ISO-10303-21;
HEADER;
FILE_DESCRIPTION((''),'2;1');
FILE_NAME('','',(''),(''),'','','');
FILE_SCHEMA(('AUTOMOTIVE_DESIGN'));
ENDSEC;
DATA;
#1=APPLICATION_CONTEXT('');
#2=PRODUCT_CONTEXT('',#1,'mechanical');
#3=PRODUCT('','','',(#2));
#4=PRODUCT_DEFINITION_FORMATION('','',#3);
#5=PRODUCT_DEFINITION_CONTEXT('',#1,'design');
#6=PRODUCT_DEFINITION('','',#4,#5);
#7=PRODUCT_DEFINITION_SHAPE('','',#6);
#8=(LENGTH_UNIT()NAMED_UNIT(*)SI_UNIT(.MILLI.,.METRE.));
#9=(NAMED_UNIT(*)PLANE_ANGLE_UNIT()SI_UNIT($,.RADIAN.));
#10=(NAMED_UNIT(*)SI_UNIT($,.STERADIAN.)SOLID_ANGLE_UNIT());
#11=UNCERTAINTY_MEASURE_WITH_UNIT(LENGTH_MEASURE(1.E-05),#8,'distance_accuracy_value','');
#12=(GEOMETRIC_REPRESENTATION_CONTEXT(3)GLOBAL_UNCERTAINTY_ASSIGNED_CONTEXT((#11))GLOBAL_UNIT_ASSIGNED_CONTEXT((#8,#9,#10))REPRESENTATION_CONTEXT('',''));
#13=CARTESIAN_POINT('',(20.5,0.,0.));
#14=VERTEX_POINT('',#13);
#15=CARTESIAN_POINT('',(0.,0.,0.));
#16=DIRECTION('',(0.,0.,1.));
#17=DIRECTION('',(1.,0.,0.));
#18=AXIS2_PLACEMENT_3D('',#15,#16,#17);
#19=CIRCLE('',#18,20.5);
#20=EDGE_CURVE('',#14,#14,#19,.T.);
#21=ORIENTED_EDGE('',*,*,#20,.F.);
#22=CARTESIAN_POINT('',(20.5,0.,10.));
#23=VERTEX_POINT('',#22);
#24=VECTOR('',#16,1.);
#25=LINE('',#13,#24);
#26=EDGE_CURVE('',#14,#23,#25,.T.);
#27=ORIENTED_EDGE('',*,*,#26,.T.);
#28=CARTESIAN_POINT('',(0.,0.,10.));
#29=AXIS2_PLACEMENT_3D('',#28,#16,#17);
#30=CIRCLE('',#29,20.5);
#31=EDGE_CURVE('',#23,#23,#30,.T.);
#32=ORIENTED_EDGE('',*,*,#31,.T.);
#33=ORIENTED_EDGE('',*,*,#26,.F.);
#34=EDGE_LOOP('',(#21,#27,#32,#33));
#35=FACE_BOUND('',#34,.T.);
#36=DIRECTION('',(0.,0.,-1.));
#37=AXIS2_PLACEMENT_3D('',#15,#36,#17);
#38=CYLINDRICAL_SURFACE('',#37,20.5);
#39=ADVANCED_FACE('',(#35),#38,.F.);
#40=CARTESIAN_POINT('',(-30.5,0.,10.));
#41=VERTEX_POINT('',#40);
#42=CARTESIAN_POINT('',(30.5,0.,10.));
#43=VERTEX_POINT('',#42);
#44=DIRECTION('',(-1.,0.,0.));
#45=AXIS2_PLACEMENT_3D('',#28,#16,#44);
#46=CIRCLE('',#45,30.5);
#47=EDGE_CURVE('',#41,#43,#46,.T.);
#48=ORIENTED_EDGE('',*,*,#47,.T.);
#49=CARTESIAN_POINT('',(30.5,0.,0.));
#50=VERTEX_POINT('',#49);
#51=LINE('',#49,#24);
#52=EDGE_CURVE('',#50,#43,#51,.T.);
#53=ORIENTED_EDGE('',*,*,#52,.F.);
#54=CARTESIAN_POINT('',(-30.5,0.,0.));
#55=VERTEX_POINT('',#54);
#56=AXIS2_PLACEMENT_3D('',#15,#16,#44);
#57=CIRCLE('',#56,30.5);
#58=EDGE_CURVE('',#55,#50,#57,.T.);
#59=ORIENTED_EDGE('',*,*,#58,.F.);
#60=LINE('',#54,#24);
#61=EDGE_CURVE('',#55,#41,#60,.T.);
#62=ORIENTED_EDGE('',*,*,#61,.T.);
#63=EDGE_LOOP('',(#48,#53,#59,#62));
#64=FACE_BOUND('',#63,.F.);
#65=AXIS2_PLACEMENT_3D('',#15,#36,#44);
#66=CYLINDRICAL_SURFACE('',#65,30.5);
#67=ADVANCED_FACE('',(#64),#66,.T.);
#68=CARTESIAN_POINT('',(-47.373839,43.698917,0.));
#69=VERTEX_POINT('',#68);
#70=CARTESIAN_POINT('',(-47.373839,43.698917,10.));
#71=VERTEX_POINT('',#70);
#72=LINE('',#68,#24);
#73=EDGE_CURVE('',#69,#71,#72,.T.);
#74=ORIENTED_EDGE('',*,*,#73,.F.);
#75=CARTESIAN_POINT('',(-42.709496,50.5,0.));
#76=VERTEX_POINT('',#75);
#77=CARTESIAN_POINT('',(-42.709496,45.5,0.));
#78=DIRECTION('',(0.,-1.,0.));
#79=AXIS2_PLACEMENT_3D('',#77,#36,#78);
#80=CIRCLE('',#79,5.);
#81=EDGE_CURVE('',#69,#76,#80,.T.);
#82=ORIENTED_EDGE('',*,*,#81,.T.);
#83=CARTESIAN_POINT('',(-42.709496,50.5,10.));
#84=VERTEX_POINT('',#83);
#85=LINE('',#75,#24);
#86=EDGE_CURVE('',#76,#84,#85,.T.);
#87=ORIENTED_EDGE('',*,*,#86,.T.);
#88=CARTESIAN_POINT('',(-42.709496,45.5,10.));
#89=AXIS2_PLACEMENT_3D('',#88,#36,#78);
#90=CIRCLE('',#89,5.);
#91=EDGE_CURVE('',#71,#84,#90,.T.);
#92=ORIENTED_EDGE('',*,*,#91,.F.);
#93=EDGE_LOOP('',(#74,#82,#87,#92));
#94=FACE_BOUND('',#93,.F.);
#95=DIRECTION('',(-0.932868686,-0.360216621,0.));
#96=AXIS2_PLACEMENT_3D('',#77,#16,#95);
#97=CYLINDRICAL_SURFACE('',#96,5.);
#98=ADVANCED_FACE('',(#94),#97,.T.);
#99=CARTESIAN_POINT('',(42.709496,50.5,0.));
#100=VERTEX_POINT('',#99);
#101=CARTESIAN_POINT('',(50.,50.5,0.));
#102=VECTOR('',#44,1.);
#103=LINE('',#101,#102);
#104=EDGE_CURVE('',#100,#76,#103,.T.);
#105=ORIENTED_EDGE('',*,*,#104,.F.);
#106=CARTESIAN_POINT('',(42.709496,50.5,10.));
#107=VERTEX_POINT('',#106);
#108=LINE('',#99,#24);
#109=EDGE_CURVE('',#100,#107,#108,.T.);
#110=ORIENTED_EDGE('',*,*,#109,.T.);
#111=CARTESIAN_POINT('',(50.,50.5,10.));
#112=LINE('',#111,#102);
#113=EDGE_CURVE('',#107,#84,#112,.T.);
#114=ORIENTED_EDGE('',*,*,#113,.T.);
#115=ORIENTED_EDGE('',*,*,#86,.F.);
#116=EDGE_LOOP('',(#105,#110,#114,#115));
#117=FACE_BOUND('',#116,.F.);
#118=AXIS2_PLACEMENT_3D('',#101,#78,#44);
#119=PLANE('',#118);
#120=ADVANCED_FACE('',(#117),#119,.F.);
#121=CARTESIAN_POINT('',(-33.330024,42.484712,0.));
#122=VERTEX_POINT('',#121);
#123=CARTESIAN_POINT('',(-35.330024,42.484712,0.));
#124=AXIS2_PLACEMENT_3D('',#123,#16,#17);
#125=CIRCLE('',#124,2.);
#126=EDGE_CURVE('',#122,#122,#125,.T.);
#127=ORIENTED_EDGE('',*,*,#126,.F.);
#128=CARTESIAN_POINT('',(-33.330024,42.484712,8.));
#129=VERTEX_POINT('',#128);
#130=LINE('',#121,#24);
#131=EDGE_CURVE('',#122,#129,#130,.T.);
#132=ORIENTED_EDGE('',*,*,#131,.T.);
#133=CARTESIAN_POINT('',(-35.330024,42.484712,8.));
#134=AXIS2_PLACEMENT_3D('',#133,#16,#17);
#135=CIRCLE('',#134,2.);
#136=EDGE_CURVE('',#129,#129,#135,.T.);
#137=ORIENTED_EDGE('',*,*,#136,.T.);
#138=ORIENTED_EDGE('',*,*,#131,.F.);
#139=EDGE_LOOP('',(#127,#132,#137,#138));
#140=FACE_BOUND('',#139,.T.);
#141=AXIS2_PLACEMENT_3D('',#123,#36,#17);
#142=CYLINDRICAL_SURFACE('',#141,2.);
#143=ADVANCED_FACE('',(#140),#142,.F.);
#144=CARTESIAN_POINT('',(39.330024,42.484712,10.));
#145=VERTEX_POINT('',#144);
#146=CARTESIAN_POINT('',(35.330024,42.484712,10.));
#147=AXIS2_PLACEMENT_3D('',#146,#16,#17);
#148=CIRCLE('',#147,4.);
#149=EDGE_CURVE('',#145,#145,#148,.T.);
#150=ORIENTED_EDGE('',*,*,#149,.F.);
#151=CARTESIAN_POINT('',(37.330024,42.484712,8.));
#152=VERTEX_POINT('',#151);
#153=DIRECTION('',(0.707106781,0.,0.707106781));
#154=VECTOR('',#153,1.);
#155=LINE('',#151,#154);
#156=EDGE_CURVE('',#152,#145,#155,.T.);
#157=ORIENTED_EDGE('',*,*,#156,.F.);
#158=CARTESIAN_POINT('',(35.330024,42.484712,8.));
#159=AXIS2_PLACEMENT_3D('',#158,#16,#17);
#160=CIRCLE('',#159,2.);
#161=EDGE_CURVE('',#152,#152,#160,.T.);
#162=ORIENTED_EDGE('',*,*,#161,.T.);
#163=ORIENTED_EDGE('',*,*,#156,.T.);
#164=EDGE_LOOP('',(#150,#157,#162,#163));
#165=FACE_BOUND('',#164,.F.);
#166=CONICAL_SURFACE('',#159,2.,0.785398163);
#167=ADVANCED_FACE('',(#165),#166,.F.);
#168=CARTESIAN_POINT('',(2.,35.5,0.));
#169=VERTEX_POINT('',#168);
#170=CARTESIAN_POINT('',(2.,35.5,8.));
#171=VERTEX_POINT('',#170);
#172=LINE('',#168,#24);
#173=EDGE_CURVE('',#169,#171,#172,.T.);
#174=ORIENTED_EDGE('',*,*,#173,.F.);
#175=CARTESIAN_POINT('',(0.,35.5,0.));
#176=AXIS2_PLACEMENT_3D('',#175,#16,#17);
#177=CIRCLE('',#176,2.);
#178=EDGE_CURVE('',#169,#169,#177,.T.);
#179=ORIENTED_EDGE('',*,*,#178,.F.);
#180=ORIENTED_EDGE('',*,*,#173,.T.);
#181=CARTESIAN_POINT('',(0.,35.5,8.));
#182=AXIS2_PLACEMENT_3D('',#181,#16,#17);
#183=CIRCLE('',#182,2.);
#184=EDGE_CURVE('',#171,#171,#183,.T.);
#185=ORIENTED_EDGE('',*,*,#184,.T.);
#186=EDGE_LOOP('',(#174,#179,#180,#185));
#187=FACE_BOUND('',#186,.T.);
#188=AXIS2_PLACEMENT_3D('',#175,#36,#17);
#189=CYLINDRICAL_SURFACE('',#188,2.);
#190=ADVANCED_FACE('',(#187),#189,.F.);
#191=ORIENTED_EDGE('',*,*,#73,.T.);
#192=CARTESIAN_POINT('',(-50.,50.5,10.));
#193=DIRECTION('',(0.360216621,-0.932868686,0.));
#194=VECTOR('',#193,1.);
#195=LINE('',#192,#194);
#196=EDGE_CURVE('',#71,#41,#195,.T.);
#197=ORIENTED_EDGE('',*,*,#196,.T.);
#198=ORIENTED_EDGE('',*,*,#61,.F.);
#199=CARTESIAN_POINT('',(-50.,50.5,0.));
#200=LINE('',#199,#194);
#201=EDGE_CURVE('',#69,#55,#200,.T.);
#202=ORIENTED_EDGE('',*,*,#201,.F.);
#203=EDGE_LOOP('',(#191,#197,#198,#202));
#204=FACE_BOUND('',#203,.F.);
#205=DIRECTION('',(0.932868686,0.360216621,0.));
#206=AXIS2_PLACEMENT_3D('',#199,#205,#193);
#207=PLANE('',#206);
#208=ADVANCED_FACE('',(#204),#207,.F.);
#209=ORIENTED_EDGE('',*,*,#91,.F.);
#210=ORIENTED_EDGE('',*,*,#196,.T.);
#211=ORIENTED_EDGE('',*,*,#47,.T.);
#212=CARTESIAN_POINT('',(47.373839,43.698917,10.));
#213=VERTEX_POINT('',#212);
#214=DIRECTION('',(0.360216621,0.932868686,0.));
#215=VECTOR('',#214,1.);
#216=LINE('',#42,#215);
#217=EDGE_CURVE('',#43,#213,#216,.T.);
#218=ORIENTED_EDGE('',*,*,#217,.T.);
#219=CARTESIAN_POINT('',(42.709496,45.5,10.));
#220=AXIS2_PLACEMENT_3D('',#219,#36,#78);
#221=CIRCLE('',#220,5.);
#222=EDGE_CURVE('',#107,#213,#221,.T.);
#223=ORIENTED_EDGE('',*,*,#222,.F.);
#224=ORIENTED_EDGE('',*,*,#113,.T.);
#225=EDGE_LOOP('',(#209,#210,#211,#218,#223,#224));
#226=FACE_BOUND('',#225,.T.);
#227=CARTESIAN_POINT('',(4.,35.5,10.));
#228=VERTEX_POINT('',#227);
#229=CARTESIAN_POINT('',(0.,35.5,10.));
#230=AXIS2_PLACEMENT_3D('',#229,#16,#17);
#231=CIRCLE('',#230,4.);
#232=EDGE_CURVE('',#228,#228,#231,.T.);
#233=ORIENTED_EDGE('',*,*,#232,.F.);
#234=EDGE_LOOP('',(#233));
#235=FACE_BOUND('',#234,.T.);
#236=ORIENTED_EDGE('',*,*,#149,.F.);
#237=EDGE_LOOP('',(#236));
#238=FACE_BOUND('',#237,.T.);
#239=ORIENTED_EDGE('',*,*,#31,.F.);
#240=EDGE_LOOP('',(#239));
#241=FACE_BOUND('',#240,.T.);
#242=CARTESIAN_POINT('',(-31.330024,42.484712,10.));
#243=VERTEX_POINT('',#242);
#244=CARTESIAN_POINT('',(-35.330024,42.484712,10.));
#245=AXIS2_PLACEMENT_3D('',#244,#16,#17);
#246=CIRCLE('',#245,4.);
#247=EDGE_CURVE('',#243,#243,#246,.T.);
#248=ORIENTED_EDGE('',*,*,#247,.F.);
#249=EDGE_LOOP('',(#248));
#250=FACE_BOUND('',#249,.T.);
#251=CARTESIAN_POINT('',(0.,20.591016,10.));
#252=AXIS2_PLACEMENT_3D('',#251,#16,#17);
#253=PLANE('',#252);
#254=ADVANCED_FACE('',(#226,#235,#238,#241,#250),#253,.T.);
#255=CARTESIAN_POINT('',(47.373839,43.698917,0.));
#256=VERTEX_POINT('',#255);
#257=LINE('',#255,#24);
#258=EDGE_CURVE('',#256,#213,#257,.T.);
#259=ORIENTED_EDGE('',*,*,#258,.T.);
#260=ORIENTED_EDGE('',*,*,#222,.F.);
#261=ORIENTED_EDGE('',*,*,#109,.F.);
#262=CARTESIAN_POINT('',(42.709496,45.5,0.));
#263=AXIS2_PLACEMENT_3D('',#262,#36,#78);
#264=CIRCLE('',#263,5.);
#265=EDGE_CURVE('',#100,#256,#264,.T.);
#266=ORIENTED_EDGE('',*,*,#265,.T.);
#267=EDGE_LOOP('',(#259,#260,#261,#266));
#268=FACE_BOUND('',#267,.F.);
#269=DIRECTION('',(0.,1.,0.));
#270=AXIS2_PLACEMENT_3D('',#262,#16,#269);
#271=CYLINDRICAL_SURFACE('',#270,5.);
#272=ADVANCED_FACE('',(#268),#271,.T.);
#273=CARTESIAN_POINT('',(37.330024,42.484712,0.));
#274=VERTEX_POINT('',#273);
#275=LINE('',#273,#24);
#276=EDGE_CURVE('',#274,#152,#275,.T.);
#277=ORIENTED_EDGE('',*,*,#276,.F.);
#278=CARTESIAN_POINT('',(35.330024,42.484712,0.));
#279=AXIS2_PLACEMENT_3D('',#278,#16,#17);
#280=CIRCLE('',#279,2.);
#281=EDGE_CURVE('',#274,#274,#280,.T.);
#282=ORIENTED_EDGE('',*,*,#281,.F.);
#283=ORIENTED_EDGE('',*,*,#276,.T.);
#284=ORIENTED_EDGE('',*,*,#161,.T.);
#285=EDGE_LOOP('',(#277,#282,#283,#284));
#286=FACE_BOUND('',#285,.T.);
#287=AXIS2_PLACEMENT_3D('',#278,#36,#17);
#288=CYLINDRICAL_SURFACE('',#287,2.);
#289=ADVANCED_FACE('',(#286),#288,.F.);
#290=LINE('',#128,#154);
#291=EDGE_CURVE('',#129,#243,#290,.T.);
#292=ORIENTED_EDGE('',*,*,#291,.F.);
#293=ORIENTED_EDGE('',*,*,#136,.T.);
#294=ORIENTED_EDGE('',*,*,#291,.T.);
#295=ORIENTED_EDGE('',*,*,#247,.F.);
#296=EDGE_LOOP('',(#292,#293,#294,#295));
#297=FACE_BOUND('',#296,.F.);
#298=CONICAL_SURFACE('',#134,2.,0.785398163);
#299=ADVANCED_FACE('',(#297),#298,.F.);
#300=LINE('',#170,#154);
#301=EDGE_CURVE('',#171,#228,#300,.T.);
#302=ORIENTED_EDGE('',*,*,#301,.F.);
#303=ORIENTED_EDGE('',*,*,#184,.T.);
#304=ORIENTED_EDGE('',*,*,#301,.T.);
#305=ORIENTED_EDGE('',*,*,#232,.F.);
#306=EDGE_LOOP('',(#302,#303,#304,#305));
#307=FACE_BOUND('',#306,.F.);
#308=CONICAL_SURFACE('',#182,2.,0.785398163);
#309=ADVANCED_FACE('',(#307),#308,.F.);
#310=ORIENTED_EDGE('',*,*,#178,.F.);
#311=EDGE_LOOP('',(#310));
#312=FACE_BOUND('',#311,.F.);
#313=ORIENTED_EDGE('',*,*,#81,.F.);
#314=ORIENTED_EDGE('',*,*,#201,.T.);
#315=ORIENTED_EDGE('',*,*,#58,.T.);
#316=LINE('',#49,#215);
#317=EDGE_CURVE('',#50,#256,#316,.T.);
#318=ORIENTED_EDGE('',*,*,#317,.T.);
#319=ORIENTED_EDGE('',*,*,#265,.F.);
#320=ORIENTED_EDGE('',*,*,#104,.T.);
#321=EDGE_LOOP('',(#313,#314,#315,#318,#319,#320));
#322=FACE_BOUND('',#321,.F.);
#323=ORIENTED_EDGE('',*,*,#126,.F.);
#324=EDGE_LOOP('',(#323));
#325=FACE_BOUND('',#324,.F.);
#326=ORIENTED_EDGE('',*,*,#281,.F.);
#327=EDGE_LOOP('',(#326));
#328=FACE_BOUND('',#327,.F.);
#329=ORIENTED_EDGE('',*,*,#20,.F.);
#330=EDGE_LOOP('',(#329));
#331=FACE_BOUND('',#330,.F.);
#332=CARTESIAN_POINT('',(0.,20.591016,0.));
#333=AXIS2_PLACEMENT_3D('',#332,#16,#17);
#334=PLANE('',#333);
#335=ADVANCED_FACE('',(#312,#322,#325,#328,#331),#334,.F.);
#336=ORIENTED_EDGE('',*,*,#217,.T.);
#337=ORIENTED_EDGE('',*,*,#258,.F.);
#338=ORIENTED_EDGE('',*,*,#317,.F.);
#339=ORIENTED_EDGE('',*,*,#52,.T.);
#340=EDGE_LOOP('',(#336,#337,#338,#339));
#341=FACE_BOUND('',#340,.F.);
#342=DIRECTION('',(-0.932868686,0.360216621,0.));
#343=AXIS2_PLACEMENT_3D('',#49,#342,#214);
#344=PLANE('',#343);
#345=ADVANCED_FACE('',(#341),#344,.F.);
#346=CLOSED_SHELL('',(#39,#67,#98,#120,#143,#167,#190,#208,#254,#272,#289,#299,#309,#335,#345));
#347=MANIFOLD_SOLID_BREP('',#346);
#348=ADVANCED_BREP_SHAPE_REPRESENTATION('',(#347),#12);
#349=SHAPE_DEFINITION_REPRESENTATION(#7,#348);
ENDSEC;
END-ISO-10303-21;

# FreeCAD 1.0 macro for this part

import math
import FreeCAD as App
import Part
import Sketcher
from FreeCAD import Vector


def edges_at(feature, points):
    """Names of the edges that pass closest to the given points."""
    edges = feature.Shape.Edges
    near = lambda p: min(range(len(edges)), key=lambda i: edges[i].distToShape(Part.Vertex(*p))[0])
    return sorted({f"Edge{near(p) + 1}" for p in points})

doc = App.newDocument("Part")
body = doc.addObject("PartDesign::Body", "Body")

sketch1 = body.newObject("Sketcher::SketchObject", "Sketch")
sketch1.AttachmentSupport = (doc.getObject("XY_Plane"), [""])
sketch1.MapMode = "FlatFace"
sketch1.addGeometry([
    Part.LineSegment(Vector(-50, 50.5, 0), Vector(-30.5, 0, 0)),
    Part.ArcOfCircle(Part.Circle(Vector(0, 0, 0), Vector(0, 0, 1), 30.5), math.radians(180), math.radians(360)),
    Part.LineSegment(Vector(30.5, 0, 0), Vector(50, 50.5, 0)),
    Part.LineSegment(Vector(50, 50.5, 0), Vector(-50, 50.5, 0)),
    Part.Circle(Vector(0, 0, 0), Vector(0, 0, 1), 20.5),
    Part.Circle(Vector(-35.3, 42.5, 0), Vector(0, 0, 1), 2),
    Part.Circle(Vector(0, 35.5, 0), Vector(0, 0, 1), 2),
    Part.Circle(Vector(35.3, 42.5, 0), Vector(0, 0, 1), 2),
], False)
sketch1.addConstraint([
    Sketcher.Constraint("Coincident", 0, 2, 1, 1),
    Sketcher.Constraint("Coincident", 1, 2, 2, 1),
    Sketcher.Constraint("Coincident", 2, 2, 3, 1),
    Sketcher.Constraint("Coincident", 3, 2, 0, 1),
    Sketcher.Constraint("Horizontal", 3),
    Sketcher.Constraint("Coincident", 1, 3, -1, 1),
    Sketcher.Constraint("Coincident", 4, 3, -1, 1),
    Sketcher.Constraint("Equal", 5, 6),
    Sketcher.Constraint("Equal", 6, 7),
    Sketcher.Constraint("Symmetric", 5, 3, 7, 3, -2),
    Sketcher.Constraint("PointOnObject", 6, 3, -2),
    Sketcher.Constraint("PointOnObject", 0, 2, -1),
    Sketcher.Constraint("PointOnObject", 1, 2, -1),
    Sketcher.Constraint("Equal", 0, 2),
    Sketcher.Constraint("Diameter", 4, 41.0),
    Sketcher.Constraint("Diameter", 5, 4.0),
    Sketcher.Constraint("Radius", 1, 30.5),
    Sketcher.Constraint("DistanceX", 3, 2, 3, 1, 100.0),
    Sketcher.Constraint("DistanceY", 6, 3, 2, 2, 15.0),
    Sketcher.Constraint("DistanceY", -1, 1, 6, 3, 35.5),
    Sketcher.Constraint("DistanceX", 5, 3, 7, 3, 70.660048),
    Sketcher.Constraint("DistanceY", -1, 1, 5, 3, 42.484712),
])
pad1 = body.newObject("PartDesign::Pad", "Pad")
pad1.Profile = sketch1
pad1.Length = 10
doc.recompute()

chamfer = body.newObject("PartDesign::Chamfer", "Chamfer")
chamfer.Base = (pad1, edges_at(pad1, [(-37.33, 42.485, 10), (-2, 35.5, 10), (33.33, 42.485, 10)]))
chamfer.Size = 2
doc.recompute()

fillet = body.newObject("PartDesign::Fillet", "Fillet")
fillet.Base = (chamfer, edges_at(chamfer, [(50, 50.5, 5), (-50, 50.5, 5)]))
fillet.Radius = 5

doc.recompute()
